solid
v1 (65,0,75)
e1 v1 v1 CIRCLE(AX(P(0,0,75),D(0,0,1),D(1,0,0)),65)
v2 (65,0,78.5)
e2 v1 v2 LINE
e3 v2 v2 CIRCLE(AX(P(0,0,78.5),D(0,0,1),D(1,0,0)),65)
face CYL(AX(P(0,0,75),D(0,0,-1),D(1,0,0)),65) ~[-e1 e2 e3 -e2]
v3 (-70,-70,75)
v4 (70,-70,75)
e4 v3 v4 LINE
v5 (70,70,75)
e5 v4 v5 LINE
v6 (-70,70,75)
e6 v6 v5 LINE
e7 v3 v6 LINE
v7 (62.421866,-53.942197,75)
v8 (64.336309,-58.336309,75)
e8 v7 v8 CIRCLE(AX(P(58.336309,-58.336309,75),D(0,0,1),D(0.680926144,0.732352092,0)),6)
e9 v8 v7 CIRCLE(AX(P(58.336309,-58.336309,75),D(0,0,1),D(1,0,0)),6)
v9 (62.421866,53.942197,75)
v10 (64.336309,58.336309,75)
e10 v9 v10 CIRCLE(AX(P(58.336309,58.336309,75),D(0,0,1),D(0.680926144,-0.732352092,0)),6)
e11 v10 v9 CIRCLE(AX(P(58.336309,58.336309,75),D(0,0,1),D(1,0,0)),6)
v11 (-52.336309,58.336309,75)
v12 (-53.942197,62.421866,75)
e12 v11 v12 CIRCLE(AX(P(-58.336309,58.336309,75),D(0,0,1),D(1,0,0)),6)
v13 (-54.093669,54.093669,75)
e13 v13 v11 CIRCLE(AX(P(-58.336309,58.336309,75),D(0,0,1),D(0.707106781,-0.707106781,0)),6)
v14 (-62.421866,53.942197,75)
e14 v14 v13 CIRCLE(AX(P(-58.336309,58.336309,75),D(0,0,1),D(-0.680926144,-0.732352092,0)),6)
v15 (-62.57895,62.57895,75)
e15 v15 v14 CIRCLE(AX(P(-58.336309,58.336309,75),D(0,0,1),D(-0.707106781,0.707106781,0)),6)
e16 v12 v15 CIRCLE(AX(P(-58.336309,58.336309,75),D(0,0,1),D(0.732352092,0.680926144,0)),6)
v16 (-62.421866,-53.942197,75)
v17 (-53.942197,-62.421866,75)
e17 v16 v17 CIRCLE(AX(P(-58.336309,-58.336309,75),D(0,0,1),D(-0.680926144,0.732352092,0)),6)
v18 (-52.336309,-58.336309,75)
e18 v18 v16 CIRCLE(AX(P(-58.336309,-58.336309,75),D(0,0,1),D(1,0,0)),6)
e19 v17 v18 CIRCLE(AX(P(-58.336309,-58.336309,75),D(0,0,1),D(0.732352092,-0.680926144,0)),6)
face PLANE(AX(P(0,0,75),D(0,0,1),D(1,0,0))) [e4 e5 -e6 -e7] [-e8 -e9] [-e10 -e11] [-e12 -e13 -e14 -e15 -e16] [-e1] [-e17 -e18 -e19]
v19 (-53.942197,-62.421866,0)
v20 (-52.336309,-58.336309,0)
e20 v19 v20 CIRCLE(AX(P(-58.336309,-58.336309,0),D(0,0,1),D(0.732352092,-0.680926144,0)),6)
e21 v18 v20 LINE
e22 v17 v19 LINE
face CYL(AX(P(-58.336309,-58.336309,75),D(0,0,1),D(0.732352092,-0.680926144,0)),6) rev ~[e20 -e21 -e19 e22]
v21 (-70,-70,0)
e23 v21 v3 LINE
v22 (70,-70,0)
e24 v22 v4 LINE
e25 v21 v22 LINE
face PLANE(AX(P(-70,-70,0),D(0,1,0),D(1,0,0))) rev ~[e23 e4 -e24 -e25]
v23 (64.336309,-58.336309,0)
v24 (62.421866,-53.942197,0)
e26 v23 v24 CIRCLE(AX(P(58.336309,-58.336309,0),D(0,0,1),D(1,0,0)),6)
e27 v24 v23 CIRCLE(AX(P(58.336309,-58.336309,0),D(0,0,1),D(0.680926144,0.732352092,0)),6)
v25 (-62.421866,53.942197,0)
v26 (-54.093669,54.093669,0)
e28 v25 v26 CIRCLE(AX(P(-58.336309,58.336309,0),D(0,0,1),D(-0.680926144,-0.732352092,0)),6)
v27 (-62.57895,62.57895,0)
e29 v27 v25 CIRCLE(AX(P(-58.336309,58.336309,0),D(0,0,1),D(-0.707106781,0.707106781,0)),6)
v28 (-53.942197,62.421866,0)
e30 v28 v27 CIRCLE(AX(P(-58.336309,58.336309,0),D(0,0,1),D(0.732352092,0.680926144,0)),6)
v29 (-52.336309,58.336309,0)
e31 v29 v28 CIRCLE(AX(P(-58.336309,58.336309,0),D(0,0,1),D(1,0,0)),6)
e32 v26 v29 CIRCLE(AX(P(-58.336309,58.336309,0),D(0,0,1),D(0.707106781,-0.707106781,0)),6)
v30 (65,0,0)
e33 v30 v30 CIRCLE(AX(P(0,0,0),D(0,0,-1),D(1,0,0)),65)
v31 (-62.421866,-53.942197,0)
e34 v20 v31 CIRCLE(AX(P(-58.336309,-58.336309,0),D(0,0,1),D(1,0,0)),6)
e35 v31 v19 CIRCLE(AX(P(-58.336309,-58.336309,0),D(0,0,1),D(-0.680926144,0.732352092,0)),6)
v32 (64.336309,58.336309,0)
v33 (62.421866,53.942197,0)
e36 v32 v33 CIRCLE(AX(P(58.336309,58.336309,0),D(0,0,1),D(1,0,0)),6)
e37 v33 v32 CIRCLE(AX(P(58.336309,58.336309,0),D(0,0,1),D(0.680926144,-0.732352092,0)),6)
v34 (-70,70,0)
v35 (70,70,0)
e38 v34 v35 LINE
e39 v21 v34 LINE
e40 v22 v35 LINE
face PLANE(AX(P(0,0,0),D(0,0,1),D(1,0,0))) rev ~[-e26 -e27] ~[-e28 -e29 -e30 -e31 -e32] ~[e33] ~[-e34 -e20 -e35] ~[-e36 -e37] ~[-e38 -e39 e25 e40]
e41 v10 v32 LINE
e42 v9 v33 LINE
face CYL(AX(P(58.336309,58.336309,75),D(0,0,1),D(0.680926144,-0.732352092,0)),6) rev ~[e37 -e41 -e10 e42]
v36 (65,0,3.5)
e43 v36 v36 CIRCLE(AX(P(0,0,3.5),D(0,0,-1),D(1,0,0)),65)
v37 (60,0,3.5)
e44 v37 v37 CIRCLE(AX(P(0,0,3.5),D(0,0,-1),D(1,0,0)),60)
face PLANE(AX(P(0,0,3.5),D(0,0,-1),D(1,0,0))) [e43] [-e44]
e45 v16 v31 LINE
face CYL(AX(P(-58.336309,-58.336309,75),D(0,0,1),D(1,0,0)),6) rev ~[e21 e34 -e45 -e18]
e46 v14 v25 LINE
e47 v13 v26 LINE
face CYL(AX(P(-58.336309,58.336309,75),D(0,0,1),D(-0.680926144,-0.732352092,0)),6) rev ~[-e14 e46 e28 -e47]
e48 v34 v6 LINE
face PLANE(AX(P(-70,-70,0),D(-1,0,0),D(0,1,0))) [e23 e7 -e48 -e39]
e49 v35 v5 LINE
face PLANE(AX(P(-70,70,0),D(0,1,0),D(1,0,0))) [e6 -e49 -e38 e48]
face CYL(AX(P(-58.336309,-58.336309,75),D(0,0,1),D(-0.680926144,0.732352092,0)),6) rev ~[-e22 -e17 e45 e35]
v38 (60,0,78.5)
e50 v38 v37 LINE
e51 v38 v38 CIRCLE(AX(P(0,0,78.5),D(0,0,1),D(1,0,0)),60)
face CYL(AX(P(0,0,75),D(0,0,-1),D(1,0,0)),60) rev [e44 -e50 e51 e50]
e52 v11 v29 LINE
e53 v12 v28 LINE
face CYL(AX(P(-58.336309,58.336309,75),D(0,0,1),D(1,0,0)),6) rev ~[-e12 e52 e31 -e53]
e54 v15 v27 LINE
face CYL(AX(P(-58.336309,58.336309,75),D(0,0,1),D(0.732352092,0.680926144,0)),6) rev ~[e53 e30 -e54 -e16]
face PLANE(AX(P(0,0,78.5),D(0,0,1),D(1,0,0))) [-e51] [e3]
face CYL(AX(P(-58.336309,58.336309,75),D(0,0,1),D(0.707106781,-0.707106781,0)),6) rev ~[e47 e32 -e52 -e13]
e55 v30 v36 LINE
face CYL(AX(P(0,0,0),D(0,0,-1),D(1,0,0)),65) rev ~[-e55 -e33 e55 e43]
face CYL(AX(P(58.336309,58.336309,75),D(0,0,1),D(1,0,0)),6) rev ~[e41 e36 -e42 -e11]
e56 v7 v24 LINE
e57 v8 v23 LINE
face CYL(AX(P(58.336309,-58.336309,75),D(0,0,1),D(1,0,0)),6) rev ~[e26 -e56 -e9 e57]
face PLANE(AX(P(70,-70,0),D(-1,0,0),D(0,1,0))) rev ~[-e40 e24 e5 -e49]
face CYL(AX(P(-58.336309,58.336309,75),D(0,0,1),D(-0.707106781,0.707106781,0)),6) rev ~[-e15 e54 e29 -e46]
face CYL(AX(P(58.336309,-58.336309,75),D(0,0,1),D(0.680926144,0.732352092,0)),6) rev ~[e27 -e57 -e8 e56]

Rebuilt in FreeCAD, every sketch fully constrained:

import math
import FreeCAD as App
import Part
import Sketcher
from FreeCAD import Vector
Q = App.Units.Quantity

doc = App.newDocument("Part")
body = doc.addObject("PartDesign::Body", "Body")

sketch1 = body.newObject("Sketcher::SketchObject", "Sketch")
sketch1.AttachmentSupport = (doc.getObject("XY_Plane"), [""])
sketch1.MapMode = "FlatFace"
sketch1.addGeometry(Part.LineSegment(Vector(-70, 70, 0), Vector(-70, -70, 0)), False)
sketch1.addGeometry(Part.LineSegment(Vector(-70, -70, 0), Vector(70, -70, 0)), False)
sketch1.addGeometry(Part.LineSegment(Vector(70, -70, 0), Vector(70, 70, 0)), False)
sketch1.addGeometry(Part.LineSegment(Vector(70, 70, 0), Vector(-70, 70, 0)), False)
sketch1.addGeometry(Part.Circle(Vector(0, 0, 0), Vector(0, 0, 1), 60), False)
sketch1.addConstraint(Sketcher.Constraint("Coincident", 0, 2, 1, 1))
sketch1.addConstraint(Sketcher.Constraint("Coincident", 1, 2, 2, 1))
sketch1.addConstraint(Sketcher.Constraint("Coincident", 2, 2, 3, 1))
sketch1.addConstraint(Sketcher.Constraint("Coincident", 3, 2, 0, 1))
sketch1.addConstraint(Sketcher.Constraint("Vertical", 0))
sketch1.addConstraint(Sketcher.Constraint("Horizontal", 1))
sketch1.addConstraint(Sketcher.Constraint("Vertical", 2))
sketch1.addConstraint(Sketcher.Constraint("Horizontal", 3))
sketch1.addConstraint(Sketcher.Constraint("Coincident", 4, 3, -1, 1))
sketch1.addConstraint(Sketcher.Constraint("Symmetric", 0, 2, 2, 2, -1, 1))
sketch1.addConstraint(Sketcher.Constraint("Equal", 3, 0))
sketch1.addConstraint(Sketcher.Constraint("Diameter", 4, Q("120 mm")))
sketch1.addConstraint(Sketcher.Constraint("DistanceX", 1, 1, 1, 2, Q("140 mm")))
pad1 = body.newObject("PartDesign::Pad", "Pad")
pad1.Profile = sketch1
pad1.Length = 75

sketch2 = body.newObject("Sketcher::SketchObject", "Sketch001")
sketch2.AttachmentSupport = (doc.getObject("XY_Plane"), [""])
sketch2.MapMode = "FlatFace"
sketch2.AttachmentOffset = App.Placement(Vector(0, 0, 75), App.Rotation())
sketch2.addGeometry(Part.Circle(Vector(0, 0, 0), Vector(0, 0, 1), 65), False)
sketch2.addGeometry(Part.Circle(Vector(0, 0, 0), Vector(0, 0, 1), 60), False)
sketch2.addConstraint(Sketcher.Constraint("Coincident", 0, 3, -1, 1))
sketch2.addConstraint(Sketcher.Constraint("Coincident", 1, 3, -1, 1))
sketch2.addConstraint(Sketcher.Constraint("Diameter", 0, Q("130 mm")))
sketch2.addConstraint(Sketcher.Constraint("Diameter", 1, Q("120 mm")))
pad2 = body.newObject("PartDesign::Pad", "Pad001")
pad2.Profile = sketch2
pad2.Length = 3.5

sketch3 = body.newObject("Sketcher::SketchObject", "Sketch002")
sketch3.AttachmentSupport = (doc.getObject("XY_Plane"), [""])
sketch3.MapMode = "FlatFace"
sketch3.addGeometry(Part.Circle(Vector(0, 0, 0), Vector(0, 0, 1), 65), False)
sketch3.addGeometry(Part.Circle(Vector(0, 0, 0), Vector(0, 0, 1), 50), False)
sketch3.addConstraint(Sketcher.Constraint("Coincident", 0, 3, -1, 1))
sketch3.addConstraint(Sketcher.Constraint("Coincident", 1, 3, -1, 1))
sketch3.addConstraint(Sketcher.Constraint("Diameter", 0, Q("130 mm")))
sketch3.addConstraint(Sketcher.Constraint("Diameter", 1, Q("100 mm")))
pocket1 = body.newObject("PartDesign::Pocket", "Pocket")
pocket1.Profile = sketch3
pocket1.Length = 3.5
pocket1.Reversed = True

sketch4 = body.newObject("Sketcher::SketchObject", "Sketch003")
sketch4.AttachmentSupport = (doc.getObject("XY_Plane"), [""])
sketch4.MapMode = "FlatFace"
sketch4.AttachmentOffset = App.Placement(Vector(0, 0, 75), App.Rotation())
sketch4.addGeometry(Part.ArcOfCircle(Part.Circle(Vector(-58.3, 58.3, 0), Vector(0, 0, 1), 6), math.radians(43), math.radians(135)), False)
sketch4.addGeometry(Part.ArcOfCircle(Part.Circle(Vector(-58.3, 58.3, 0), Vector(0, 0, 1), 6), math.radians(135), math.radians(227)), False)
sketch4.addGeometry(Part.ArcOfCircle(Part.Circle(Vector(-58.3, 58.3, 0), Vector(0, 0, 1), 6), math.radians(-133), math.radians(-45)), False)
sketch4.addGeometry(Part.ArcOfCircle(Part.Circle(Vector(-58.3, 58.3, 0), Vector(0, 0, 1), 6), math.radians(-45), math.radians(0)), False)
sketch4.addGeometry(Part.ArcOfCircle(Part.Circle(Vector(-58.3, 58.3, 0), Vector(0, 0, 1), 6), math.radians(0), math.radians(43)), False)
sketch4.addGeometry(Part.ArcOfCircle(Part.Circle(Vector(58.3, 58.3, 0), Vector(0, 0, 1), 6), math.radians(-47), math.radians(0)), False)
sketch4.addGeometry(Part.ArcOfCircle(Part.Circle(Vector(58.3, 58.3, 0), Vector(0, 0, 1), 6), math.radians(0), math.radians(313)), False)
sketch4.addGeometry(Part.ArcOfCircle(Part.Circle(Vector(58.3, -58.3, 0), Vector(0, 0, 1), 6), math.radians(0), math.radians(47)), False)
sketch4.addGeometry(Part.ArcOfCircle(Part.Circle(Vector(58.3, -58.3, 0), Vector(0, 0, 1), 6), math.radians(47), math.radians(360)), False)
sketch4.addGeometry(Part.ArcOfCircle(Part.Circle(Vector(-58.3, -58.3, 0), Vector(0, 0, 1), 6), math.radians(133), math.radians(317)), False)
sketch4.addGeometry(Part.ArcOfCircle(Part.Circle(Vector(-58.3, -58.3, 0), Vector(0, 0, 1), 6), math.radians(-43), math.radians(0)), False)
sketch4.addGeometry(Part.ArcOfCircle(Part.Circle(Vector(-58.3, -58.3, 0), Vector(0, 0, 1), 6), math.radians(0), math.radians(133)), False)
sketch4.addConstraint(Sketcher.Constraint("Tangent", 0, 2, 1, 1))
sketch4.addConstraint(Sketcher.Constraint("Tangent", 1, 2, 2, 1))
sketch4.addConstraint(Sketcher.Constraint("Tangent", 2, 2, 3, 1))
sketch4.addConstraint(Sketcher.Constraint("Tangent", 3, 2, 4, 1))
sketch4.addConstraint(Sketcher.Constraint("Tangent", 4, 2, 0, 1))
sketch4.addConstraint(Sketcher.Constraint("Tangent", 5, 1, 6, 2))
sketch4.addConstraint(Sketcher.Constraint("Coincident", 6, 1, 5, 2))
sketch4.addConstraint(Sketcher.Constraint("Tangent", 7, 1, 8, 2))
sketch4.addConstraint(Sketcher.Constraint("Coincident", 8, 1, 7, 2))
sketch4.addConstraint(Sketcher.Constraint("Tangent", 9, 2, 10, 1))
sketch4.addConstraint(Sketcher.Constraint("Tangent", 10, 2, 11, 1))
sketch4.addConstraint(Sketcher.Constraint("Tangent", 11, 2, 9, 1))
sketch4.addConstraint(Sketcher.Constraint("Coincident", 2, 3, 0, 3))
sketch4.addConstraint(Sketcher.Constraint("Equal", 4, 5))
sketch4.addConstraint(Sketcher.Constraint("Equal", 6, 7))
sketch4.addConstraint(Sketcher.Constraint("Equal", 8, 9))
sketch4.addConstraint(Sketcher.Constraint("Symmetric", 0, 3, 7, 3, -1, 1))
sketch4.addConstraint(Sketcher.Constraint("Symmetric", 5, 3, 9, 3, -1, 1))
sketch4.addConstraint(Sketcher.Constraint("Symmetric", 0, 3, 5, 3, -2))
sketch4.addConstraint(Sketcher.Constraint("Horizontal", 6, 3, 3, 2))
sketch4.addConstraint(Sketcher.Constraint("Horizontal", 1, 2, 5, 1))
sketch4.addConstraint(Sketcher.Constraint("Horizontal", 3, 2, 6, 1))
sketch4.addConstraint(Sketcher.Constraint("Horizontal", 11, 3, 7, 1))
sketch4.addConstraint(Sketcher.Constraint("Horizontal", 7, 1, 10, 2))
sketch4.addConstraint(Sketcher.Constraint("Horizontal", 8, 1, 11, 2))
sketch4.addConstraint(Sketcher.Constraint("Vertical", 5, 1, 8, 1))
sketch4.addConstraint(Sketcher.Constraint("Vertical", 4, 2, 9, 2))
sketch4.addConstraint(Sketcher.Constraint("Radius", 0, Q("6 mm")))
sketch4.addConstraint(Sketcher.Constraint("DistanceX", 0, 3, -1, 1, Q("58.336309 mm")))
sketch4.addConstraint(Sketcher.Constraint("DistanceY", -1, 1, 0, 3, Q("58.336309 mm")))
sketch4.addConstraint(Sketcher.Constraint("DistanceX", 0, 2, -1, 1, Q("62.57895 mm")))
sketch4.addConstraint(Sketcher.Constraint("DistanceX", 2, 2, -1, 1, Q("54.093669 mm")))
sketch4.addConstraint(Sketcher.Constraint("DistanceX", 11, 2, 9, 2, Q("8.479669 mm")))
sketch4.addConstraint(Sketcher.Constraint("DistanceY", 9, 2, 11, 2, Q("8.479669 mm")))
pocket2 = body.newObject("PartDesign::Pocket", "Pocket001")
pocket2.Profile = sketch4
pocket2.Type = "ThroughAll"

doc.recompute()
